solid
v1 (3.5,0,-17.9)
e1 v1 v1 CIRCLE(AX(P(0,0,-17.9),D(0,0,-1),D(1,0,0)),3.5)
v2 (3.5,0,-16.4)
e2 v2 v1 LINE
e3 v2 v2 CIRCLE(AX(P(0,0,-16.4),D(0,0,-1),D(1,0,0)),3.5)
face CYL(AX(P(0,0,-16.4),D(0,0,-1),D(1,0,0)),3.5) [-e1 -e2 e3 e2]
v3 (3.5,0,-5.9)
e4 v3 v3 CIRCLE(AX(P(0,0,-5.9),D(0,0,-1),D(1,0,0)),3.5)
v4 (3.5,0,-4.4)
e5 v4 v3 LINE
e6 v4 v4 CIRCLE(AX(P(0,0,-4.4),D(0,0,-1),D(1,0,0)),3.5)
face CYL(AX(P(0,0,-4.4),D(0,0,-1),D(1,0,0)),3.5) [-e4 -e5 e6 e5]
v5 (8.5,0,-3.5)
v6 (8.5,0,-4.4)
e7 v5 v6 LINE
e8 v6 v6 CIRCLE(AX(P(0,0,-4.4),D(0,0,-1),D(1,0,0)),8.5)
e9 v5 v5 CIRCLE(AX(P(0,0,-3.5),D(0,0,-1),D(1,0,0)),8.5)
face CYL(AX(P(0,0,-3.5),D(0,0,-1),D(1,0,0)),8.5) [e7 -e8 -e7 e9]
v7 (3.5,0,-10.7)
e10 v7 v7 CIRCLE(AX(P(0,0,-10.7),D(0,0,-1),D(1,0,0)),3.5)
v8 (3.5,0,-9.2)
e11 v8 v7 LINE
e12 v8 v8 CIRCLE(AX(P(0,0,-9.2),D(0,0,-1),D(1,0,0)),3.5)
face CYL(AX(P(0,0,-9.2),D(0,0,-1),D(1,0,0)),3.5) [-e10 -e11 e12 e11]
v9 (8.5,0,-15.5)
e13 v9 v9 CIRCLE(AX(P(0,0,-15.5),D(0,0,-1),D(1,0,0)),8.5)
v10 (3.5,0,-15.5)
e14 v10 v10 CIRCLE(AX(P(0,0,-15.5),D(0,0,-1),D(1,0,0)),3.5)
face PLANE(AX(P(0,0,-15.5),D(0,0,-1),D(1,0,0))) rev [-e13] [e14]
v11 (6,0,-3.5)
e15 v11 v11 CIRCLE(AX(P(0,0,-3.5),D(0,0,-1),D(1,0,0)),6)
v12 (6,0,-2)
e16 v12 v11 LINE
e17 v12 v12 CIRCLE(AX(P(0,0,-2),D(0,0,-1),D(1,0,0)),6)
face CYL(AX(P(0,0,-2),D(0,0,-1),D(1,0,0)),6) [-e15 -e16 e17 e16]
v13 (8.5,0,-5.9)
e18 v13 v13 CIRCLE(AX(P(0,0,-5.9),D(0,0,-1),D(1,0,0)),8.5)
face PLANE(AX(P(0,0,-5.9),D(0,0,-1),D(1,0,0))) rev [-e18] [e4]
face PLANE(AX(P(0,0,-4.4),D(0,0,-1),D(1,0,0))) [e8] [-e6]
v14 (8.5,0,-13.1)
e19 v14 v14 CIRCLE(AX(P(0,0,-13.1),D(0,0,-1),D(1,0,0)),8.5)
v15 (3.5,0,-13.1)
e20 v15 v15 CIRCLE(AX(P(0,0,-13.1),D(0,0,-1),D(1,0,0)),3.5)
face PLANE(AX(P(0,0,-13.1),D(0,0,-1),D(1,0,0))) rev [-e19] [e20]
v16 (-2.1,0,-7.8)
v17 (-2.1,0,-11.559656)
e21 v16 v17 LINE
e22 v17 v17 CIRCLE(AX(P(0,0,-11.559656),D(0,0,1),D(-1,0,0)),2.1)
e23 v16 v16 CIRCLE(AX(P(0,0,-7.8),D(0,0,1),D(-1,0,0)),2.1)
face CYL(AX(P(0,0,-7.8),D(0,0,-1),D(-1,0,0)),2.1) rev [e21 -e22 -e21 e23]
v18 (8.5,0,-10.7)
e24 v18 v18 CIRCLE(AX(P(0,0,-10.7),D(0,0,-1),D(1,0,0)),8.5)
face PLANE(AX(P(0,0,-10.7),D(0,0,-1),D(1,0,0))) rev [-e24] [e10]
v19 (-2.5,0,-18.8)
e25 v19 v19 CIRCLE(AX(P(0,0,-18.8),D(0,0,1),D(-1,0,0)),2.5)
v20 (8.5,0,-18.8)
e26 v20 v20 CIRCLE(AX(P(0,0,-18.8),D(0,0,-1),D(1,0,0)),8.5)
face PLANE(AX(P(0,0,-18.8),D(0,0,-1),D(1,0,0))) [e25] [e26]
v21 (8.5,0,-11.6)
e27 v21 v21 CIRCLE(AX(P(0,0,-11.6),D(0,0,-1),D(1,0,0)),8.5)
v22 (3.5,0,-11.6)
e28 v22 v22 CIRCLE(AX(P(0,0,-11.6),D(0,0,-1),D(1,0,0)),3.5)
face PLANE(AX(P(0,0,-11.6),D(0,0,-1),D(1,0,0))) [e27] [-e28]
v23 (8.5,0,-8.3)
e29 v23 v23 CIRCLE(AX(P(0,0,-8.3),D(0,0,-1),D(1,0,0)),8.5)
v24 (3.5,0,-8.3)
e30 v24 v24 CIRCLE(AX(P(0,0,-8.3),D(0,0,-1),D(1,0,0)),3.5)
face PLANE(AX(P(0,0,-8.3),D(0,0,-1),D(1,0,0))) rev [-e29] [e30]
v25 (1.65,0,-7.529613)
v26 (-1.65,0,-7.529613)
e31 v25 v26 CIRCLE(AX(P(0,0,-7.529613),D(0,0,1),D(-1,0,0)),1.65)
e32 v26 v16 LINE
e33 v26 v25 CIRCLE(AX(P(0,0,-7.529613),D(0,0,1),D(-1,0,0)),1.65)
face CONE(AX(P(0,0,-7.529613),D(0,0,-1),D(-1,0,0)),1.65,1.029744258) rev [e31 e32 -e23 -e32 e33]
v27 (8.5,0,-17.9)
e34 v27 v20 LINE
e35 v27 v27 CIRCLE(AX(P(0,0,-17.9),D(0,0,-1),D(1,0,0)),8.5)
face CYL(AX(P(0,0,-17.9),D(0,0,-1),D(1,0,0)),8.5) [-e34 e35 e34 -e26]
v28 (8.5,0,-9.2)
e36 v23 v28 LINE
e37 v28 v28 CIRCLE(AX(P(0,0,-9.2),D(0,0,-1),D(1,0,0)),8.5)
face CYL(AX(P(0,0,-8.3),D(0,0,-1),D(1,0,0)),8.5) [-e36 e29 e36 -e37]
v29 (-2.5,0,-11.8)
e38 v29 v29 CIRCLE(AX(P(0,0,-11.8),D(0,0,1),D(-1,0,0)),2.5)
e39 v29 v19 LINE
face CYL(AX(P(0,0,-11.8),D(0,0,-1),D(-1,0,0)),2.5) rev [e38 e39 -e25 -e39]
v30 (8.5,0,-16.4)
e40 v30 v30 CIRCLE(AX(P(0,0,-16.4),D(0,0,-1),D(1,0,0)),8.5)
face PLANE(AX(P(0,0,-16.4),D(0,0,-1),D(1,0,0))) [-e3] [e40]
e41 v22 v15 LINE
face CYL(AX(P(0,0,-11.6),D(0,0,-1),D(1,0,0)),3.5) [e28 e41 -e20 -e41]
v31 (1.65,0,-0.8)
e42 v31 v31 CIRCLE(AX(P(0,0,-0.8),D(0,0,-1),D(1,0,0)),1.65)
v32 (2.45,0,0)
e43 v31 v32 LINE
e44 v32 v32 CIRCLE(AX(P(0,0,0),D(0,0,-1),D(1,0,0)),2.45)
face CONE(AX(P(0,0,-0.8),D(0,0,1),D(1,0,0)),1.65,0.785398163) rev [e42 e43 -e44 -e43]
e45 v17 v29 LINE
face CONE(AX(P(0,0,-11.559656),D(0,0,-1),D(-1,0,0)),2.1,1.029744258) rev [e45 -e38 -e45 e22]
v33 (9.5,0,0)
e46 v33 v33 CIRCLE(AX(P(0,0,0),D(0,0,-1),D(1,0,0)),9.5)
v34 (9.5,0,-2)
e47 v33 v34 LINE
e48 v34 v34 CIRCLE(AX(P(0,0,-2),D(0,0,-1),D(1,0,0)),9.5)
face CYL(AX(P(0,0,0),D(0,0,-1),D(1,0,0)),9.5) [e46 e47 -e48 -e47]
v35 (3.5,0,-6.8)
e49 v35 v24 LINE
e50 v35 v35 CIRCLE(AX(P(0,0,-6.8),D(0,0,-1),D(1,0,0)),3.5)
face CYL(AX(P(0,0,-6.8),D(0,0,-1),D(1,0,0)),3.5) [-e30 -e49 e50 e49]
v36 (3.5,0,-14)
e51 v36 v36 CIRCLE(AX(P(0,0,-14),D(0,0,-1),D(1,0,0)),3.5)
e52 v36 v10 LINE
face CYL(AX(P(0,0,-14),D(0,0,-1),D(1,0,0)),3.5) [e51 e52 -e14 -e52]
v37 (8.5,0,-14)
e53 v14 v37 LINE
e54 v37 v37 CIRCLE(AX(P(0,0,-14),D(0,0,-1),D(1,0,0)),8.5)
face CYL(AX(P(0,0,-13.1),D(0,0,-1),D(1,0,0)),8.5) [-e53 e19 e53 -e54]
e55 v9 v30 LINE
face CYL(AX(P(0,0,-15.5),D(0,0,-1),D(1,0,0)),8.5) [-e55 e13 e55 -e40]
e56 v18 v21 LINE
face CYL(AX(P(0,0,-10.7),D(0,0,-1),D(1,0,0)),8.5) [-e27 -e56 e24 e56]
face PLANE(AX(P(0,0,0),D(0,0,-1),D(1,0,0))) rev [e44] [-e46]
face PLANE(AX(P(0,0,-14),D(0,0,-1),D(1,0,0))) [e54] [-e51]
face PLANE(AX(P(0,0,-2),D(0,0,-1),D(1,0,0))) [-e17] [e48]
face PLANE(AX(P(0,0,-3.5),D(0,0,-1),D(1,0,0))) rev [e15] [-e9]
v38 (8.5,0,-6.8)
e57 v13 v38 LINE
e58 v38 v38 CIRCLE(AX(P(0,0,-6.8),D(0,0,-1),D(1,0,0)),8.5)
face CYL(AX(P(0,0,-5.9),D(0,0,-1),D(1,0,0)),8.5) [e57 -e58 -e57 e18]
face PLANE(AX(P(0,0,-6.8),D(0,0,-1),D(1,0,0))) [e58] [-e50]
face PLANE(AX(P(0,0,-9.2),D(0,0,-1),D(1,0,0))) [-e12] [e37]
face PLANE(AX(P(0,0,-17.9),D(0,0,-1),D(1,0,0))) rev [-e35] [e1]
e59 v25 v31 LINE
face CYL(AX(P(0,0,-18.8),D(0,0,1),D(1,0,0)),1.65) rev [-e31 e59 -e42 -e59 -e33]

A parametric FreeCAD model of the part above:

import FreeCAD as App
import Part
import Sketcher

V = App.Vector
Q = App.Units.Quantity


def edges_at(feature, points):
    """Names of the edges that pass closest to the given points."""
    edges = feature.Shape.Edges
    near = lambda p: min(range(len(edges)), key=lambda i: edges[i].distToShape(Part.Vertex(*p))[0])
    return sorted({f"Edge{near(p) + 1}" for p in points})


def add_polygon(sketch, points):
    """Adds a closed chain of lines whose ends are joined by coincident constraints."""
    first, n = sketch.GeometryCount, len(points)
    for a, b in zip(points, points[1:] + points[:1]):
        sketch.addGeometry(Part.LineSegment(App.Vector(*a, 0), App.Vector(*b, 0)), False)
    for i in range(n):
        sketch.addConstraint(Sketcher.Constraint("Coincident", first + i, 2, first + (i + 1) % n, 1))

doc = App.newDocument("Part")
body = doc.addObject("PartDesign::Body", "Body")

sketch1 = body.newObject("Sketcher::SketchObject", "Sketch")
sketch1.AttachmentSupport = (doc.getObject("XZ_Plane"), [""])
sketch1.MapMode = "FlatFace"
add_polygon(sketch1, [(1.65, -18.8), (1.65, 0), (9.5, 0), (9.5, -2), (6, -2), (6, -3.5), (8.5, -3.5), (8.5, -4.4), (3.5, -4.4), (3.5, -5.9), (8.5, -5.9), (8.5, -6.8), (3.5, -6.8), (3.5, -8.3), (8.5, -8.3), (8.5, -9.2), (3.5, -9.2), (3.5, -10.7), (8.5, -10.7), (8.5, -11.6), (3.5, -11.6), (3.5, -13.1), (8.5, -13.1), (8.5, -14), (3.5, -14), (3.5, -15.5), (8.5, -15.5), (8.5, -16.4), (3.5, -16.4), (3.5, -17.9), (8.5, -17.9), (8.5, -18.8)])
sketch1.addConstraint(Sketcher.Constraint("Vertical", 0))
sketch1.addConstraint(Sketcher.Constraint("Horizontal", 1))
sketch1.addConstraint(Sketcher.Constraint("Vertical", 2))
sketch1.addConstraint(Sketcher.Constraint("Horizontal", 3))
sketch1.addConstraint(Sketcher.Constraint("Vertical", 4))
sketch1.addConstraint(Sketcher.Constraint("Horizontal", 5))
sketch1.addConstraint(Sketcher.Constraint("Vertical", 6))
sketch1.addConstraint(Sketcher.Constraint("Horizontal", 7))
sketch1.addConstraint(Sketcher.Constraint("Vertical", 8))
sketch1.addConstraint(Sketcher.Constraint("Horizontal", 9))
sketch1.addConstraint(Sketcher.Constraint("Vertical", 10))
sketch1.addConstraint(Sketcher.Constraint("Horizontal", 11))
sketch1.addConstraint(Sketcher.Constraint("Vertical", 12))
sketch1.addConstraint(Sketcher.Constraint("Horizontal", 13))
sketch1.addConstraint(Sketcher.Constraint("Vertical", 14))
sketch1.addConstraint(Sketcher.Constraint("Horizontal", 15))
sketch1.addConstraint(Sketcher.Constraint("Vertical", 16))
sketch1.addConstraint(Sketcher.Constraint("Horizontal", 17))
sketch1.addConstraint(Sketcher.Constraint("Vertical", 18))
sketch1.addConstraint(Sketcher.Constraint("Horizontal", 19))
sketch1.addConstraint(Sketcher.Constraint("Vertical", 20))
sketch1.addConstraint(Sketcher.Constraint("Horizontal", 21))
sketch1.addConstraint(Sketcher.Constraint("Vertical", 22))
sketch1.addConstraint(Sketcher.Constraint("Horizontal", 23))
sketch1.addConstraint(Sketcher.Constraint("Vertical", 24))
sketch1.addConstraint(Sketcher.Constraint("Horizontal", 25))
sketch1.addConstraint(Sketcher.Constraint("Vertical", 26))
sketch1.addConstraint(Sketcher.Constraint("Horizontal", 27))
sketch1.addConstraint(Sketcher.Constraint("Vertical", 28))
sketch1.addConstraint(Sketcher.Constraint("Horizontal", 29))
sketch1.addConstraint(Sketcher.Constraint("Vertical", 30))
sketch1.addConstraint(Sketcher.Constraint("Horizontal", 31))
sketch1.addConstraint(Sketcher.Constraint("PointOnObject", 0, 2, -1))
sketch1.addConstraint(Sketcher.Constraint("Vertical", 6, 2, 9, 2))
sketch1.addConstraint(Sketcher.Constraint("Vertical", 8, 2, 11, 2))
sketch1.addConstraint(Sketcher.Constraint("Vertical", 10, 2, 13, 2))
sketch1.addConstraint(Sketcher.Constraint("Vertical", 12, 2, 15, 2))
sketch1.addConstraint(Sketcher.Constraint("Vertical", 14, 2, 17, 2))
sketch1.addConstraint(Sketcher.Constraint("Vertical", 16, 2, 19, 2))
sketch1.addConstraint(Sketcher.Constraint("Vertical", 18, 2, 21, 2))
sketch1.addConstraint(Sketcher.Constraint("Vertical", 20, 2, 23, 2))
sketch1.addConstraint(Sketcher.Constraint("Vertical", 22, 2, 25, 2))
sketch1.addConstraint(Sketcher.Constraint("Vertical", 24, 2, 27, 2))
sketch1.addConstraint(Sketcher.Constraint("Vertical", 26, 2, 29, 2))
sketch1.addConstraint(Sketcher.Constraint("Equal", 4, 8))
sketch1.addConstraint(Sketcher.Constraint("Equal", 6, 10))
sketch1.addConstraint(Sketcher.Constraint("Equal", 8, 12))
sketch1.addConstraint(Sketcher.Constraint("Equal", 10, 14))
sketch1.addConstraint(Sketcher.Constraint("Equal", 12, 16))
sketch1.addConstraint(Sketcher.Constraint("Equal", 14, 18))
sketch1.addConstraint(Sketcher.Constraint("Equal", 16, 20))
sketch1.addConstraint(Sketcher.Constraint("Equal", 18, 22))
sketch1.addConstraint(Sketcher.Constraint("Equal", 20, 24))
sketch1.addConstraint(Sketcher.Constraint("Equal", 22, 26))
sketch1.addConstraint(Sketcher.Constraint("Equal", 24, 28))
sketch1.addConstraint(Sketcher.Constraint("Equal", 26, 30))
sketch1.addConstraint(Sketcher.Constraint("DistanceX", 7, 2, 7, 1, 5.0))
sketch1.addConstraint(Sketcher.Constraint("DistanceY", 2, 2, 2, 1, 2.0))
sketch1.addConstraint(Sketcher.Constraint("DistanceX", 3, 2, 3, 1, 3.5))
sketch1.addConstraint(Sketcher.Constraint("DistanceX", 5, 1, 5, 2, 2.5))
sketch1.addConstraint(Sketcher.Constraint("DistanceY", 0, 1, 0, 2, 18.8))
sketch1.addConstraint(Sketcher.Constraint("DistanceY", 4, 2, 4, 1, 1.5))
sketch1.addConstraint(Sketcher.Constraint("DistanceX", -1, 1, 3, 2, 6.0))
sketch1.addConstraint(Sketcher.Constraint("DistanceX", 1, 1, 1, 2, 7.85))
revolution = body.newObject("PartDesign::Revolution", "Revolution")
revolution.Profile = sketch1
revolution.ReferenceAxis = (sketch1, ["V_Axis"])
revolution.Angle = 360
doc.recompute()

chamfer = body.newObject("PartDesign::Chamfer", "Chamfer")
chamfer.Base = (revolution, edges_at(revolution, [(-1.65, 0, 0)]))
chamfer.Size = 0.8

sketch2 = body.newObject("Sketcher::SketchObject", "Sketch001")
sketch2.AttachmentSupport = (doc.getObject("XZ_Plane"), [""])
sketch2.MapMode = "FlatFace"
add_polygon(sketch2, [(0, -7.529613), (1.65, -7.529613), (2.1, -7.8), (2.1, -11.559656), (2.5, -11.8), (2.5, -18.8), (0, -18.8)])
sketch2.addConstraint(Sketcher.Constraint("Horizontal", 0))
sketch2.addConstraint(Sketcher.Constraint("Vertical", 2))
sketch2.addConstraint(Sketcher.Constraint("Vertical", 4))
sketch2.addConstraint(Sketcher.Constraint("Horizontal", 5))
sketch2.addConstraint(Sketcher.Constraint("Vertical", 6))
sketch2.addConstraint(Sketcher.Constraint("PointOnObject", 5, 2, -2))
sketch2.addConstraint(Sketcher.Constraint("Parallel", 1, 3))
sketch2.addConstraint(Sketcher.Constraint("DistanceY", 4, 2, 4, 1, 7.0))
sketch2.addConstraint(Sketcher.Constraint("Angle", 1, Q("-31 deg")))
sketch2.addConstraint(Sketcher.Constraint("DistanceX", 5, 2, 5, 1, 2.5))
sketch2.addConstraint(Sketcher.Constraint("DistanceY", 3, 2, 1, 2, 4.0))
sketch2.addConstraint(Sketcher.Constraint("DistanceX", 0, 1, 0, 2, 1.65))
sketch2.addConstraint(Sketcher.Constraint("DistanceX", -1, 1, 1, 2, 2.1))
sketch2.addConstraint(Sketcher.Constraint("DistanceY", 1, 2, -1, 1, 7.8))
groove = body.newObject("PartDesign::Groove", "Groove")
groove.Profile = sketch2
groove.ReferenceAxis = (sketch2, ["V_Axis"])
groove.Angle = 360

doc.recompute()
